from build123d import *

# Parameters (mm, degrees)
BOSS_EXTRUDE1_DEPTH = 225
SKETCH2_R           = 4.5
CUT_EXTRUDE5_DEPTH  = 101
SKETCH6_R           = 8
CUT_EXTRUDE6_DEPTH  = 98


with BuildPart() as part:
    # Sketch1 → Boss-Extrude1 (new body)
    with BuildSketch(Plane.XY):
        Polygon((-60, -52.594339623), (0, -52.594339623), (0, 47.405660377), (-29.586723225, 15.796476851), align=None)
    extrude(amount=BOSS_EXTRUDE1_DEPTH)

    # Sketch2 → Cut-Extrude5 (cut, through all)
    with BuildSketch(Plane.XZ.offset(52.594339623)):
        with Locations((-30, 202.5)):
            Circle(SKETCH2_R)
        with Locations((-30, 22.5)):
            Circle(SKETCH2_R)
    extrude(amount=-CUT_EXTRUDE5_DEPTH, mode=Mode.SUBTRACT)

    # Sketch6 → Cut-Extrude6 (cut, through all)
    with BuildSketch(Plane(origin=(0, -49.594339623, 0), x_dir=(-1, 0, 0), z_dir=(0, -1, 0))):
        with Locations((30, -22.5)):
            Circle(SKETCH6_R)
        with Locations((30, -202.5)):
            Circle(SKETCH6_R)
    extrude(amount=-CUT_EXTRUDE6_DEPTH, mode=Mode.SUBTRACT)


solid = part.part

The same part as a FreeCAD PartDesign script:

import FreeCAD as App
import Part
import Sketcher
from FreeCAD import Vector


def add_polygon(sketch, points):
    """Adds a closed chain of lines whose ends are joined by coincident constraints."""
    first, n = sketch.GeometryCount, len(points)
    for a, b in zip(points, points[1:] + points[:1]):
        sketch.addGeometry(Part.LineSegment(App.Vector(*a, 0), App.Vector(*b, 0)), False)
    for i in range(n):
        sketch.addConstraint(Sketcher.Constraint("Coincident", first + i, 2, first + (i + 1) % n, 1))

doc = App.newDocument("Part")
body = doc.addObject("PartDesign::Body", "Body")

sketch1 = body.newObject("Sketcher::SketchObject", "Sketch")
sketch1.AttachmentSupport = (doc.getObject("XY_Plane"), [""])
sketch1.MapMode = "FlatFace"
add_polygon(sketch1, [(-60, -52.59434), (0, -52.59434), (0, 47.40566), (-29.586723, 15.796477)])
sketch1.addConstraint(Sketcher.Constraint("Horizontal", 0))
sketch1.addConstraint(Sketcher.Constraint("Vertical", 1))
sketch1.addConstraint(Sketcher.Constraint("PointOnObject", 0, 2, -2))
sketch1.addConstraint(Sketcher.Constraint("DistanceX", 0, 1, 0, 2, 60.0))
sketch1.addConstraint(Sketcher.Constraint("DistanceY", 1, 1, 1, 2, 100.0))
sketch1.addConstraint(Sketcher.Constraint("Distance", 3, 74.848321))
sketch1.addConstraint(Sketcher.Constraint("DistanceY", 0, 2, -1, 1, 52.59434))
sketch1.addConstraint(Sketcher.Constraint("Distance", 2, 43.295666))
pad1 = body.newObject("PartDesign::Pad", "Pad")
pad1.Profile = sketch1
pad1.Length = 225

sketch2 = body.newObject("Sketcher::SketchObject", "Sketch001")
sketch2.AttachmentSupport = (doc.getObject("XZ_Plane"), [""])
sketch2.MapMode = "FlatFace"
sketch2.AttachmentOffset = App.Placement(Vector(0, 0, 52.59434), App.Rotation())
sketch2.addGeometry(Part.Circle(Vector(-30, 202.5, 0), Vector(0, 0, 1), 4.5), False)
sketch2.addGeometry(Part.Circle(Vector(-30, 22.5, 0), Vector(0, 0, 1), 4.5), False)
sketch2.addConstraint(Sketcher.Constraint("Equal", 0, 1))
sketch2.addConstraint(Sketcher.Constraint("Vertical", 0, 3, 1, 3))
sketch2.addConstraint(Sketcher.Constraint("Diameter", 0, 9.0))
sketch2.addConstraint(Sketcher.Constraint("DistanceX", 0, 3, -1, 1, 30.0))
sketch2.addConstraint(Sketcher.Constraint("DistanceY", 1, 3, 0, 3, 180.0))
sketch2.addConstraint(Sketcher.Constraint("DistanceY", -1, 1, 0, 3, 202.5))
pocket1 = body.newObject("PartDesign::Pocket", "Pocket")
pocket1.Profile = sketch2
pocket1.Type = "ThroughAll"

sketch3 = body.newObject("Sketcher::SketchObject", "Sketch002")
sketch3.AttachmentSupport = (doc.getObject("XZ_Plane"), [""])
sketch3.MapMode = "FlatFace"
sketch3.AttachmentOffset = App.Placement(Vector(0, 0, 49.59434), App.Rotation())
sketch3.addGeometry(Part.Circle(Vector(-30, 22.5, 0), Vector(0, 0, 1), 8), False)
sketch3.addGeometry(Part.Circle(Vector(-30, 202.5, 0), Vector(0, 0, 1), 8), False)
sketch3.addConstraint(Sketcher.Constraint("Equal", 0, 1))
sketch3.addConstraint(Sketcher.Constraint("Vertical", 0, 3, 1, 3))
sketch3.addConstraint(Sketcher.Constraint("Diameter", 0, 16.0))
sketch3.addConstraint(Sketcher.Constraint("DistanceX", 0, 3, -1, 1, 30.0))
sketch3.addConstraint(Sketcher.Constraint("DistanceY", 0, 3, 1, 3, 180.0))
sketch3.addConstraint(Sketcher.Constraint("DistanceY", -1, 1, 0, 3, 22.5))
pocket2 = body.newObject("PartDesign::Pocket", "Pocket001")
pocket2.Profile = sketch3
pocket2.Type = "ThroughAll"

doc.recompute()
